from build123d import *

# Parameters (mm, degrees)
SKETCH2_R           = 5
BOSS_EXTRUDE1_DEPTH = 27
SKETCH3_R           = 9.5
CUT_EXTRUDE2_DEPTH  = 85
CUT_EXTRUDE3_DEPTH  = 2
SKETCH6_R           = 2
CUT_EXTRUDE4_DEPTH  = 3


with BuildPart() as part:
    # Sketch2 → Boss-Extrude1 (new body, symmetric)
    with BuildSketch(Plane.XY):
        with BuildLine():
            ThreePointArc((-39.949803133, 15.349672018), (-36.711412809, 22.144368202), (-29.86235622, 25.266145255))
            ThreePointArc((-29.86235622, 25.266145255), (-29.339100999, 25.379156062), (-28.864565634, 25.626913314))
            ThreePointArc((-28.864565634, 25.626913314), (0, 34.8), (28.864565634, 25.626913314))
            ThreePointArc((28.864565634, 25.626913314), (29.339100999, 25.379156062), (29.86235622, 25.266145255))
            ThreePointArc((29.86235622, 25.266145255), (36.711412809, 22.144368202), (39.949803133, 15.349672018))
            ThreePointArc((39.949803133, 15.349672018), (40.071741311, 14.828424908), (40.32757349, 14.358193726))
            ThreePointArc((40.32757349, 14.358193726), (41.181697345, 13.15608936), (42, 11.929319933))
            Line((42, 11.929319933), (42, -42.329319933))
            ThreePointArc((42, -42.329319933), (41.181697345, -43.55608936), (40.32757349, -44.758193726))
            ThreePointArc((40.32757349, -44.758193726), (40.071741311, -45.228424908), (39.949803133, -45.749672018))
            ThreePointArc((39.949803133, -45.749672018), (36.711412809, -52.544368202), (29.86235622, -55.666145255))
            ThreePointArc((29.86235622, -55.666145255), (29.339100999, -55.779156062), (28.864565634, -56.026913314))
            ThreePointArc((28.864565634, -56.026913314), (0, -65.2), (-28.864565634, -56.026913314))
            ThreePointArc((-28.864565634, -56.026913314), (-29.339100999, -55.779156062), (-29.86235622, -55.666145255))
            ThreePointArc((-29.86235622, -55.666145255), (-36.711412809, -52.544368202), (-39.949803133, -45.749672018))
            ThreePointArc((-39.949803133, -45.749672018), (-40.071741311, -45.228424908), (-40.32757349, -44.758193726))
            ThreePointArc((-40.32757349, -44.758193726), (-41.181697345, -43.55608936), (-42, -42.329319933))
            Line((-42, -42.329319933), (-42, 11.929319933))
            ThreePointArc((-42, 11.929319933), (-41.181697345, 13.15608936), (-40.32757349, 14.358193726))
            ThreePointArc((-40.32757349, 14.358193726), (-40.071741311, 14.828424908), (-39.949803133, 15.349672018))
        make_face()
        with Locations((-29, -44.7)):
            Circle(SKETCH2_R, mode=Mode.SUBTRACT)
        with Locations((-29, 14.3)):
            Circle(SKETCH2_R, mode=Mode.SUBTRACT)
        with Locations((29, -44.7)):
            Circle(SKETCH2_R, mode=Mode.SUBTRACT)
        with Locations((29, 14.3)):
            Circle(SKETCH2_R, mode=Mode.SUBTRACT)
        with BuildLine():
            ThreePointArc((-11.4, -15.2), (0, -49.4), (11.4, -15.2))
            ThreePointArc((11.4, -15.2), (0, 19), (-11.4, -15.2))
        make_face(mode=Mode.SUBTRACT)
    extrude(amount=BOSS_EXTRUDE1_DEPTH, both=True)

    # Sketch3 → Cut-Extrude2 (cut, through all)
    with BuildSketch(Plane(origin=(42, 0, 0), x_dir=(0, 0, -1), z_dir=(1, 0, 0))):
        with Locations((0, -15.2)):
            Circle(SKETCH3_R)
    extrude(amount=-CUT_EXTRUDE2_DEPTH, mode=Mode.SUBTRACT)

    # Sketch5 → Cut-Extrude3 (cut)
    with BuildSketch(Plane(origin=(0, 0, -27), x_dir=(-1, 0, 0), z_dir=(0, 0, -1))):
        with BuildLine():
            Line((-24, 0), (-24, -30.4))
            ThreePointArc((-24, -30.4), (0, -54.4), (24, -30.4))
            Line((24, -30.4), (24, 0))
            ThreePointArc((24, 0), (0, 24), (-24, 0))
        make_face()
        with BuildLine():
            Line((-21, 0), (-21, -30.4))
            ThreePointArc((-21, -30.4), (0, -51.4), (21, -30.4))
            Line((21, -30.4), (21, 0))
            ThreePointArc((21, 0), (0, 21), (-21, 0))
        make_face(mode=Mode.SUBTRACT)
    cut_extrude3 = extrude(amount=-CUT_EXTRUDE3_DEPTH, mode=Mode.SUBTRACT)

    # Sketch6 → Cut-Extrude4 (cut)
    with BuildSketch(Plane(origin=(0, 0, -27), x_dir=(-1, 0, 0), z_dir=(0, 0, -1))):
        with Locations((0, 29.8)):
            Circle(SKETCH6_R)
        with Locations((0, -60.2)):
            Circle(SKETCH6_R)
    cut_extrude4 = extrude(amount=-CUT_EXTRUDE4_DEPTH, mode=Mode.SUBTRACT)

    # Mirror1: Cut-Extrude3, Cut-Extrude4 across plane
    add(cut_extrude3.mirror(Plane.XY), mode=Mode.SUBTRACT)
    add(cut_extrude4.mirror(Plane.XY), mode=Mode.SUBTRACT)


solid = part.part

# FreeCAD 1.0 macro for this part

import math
import FreeCAD as App
import Part
import Sketcher

V = App.Vector
Q = App.Units.Quantity

doc = App.newDocument("Part")
body = doc.addObject("PartDesign::Body", "Body")

# Sketch on XY plane
sketch1 = body.newObject("Sketcher::SketchObject", "Sketch")
sketch1.AttachmentSupport = (doc.getObject("XY_Plane"), [""])
sketch1.MapMode = "FlatFace"
sketch1.addGeometry([
    Part.ArcOfCircle(Part.Circle(V(-29, 14.3, 0), V(0, 0, 1), 11), math.radians(94.496375), math.radians(174.524234)),  # 0
    Part.ArcOfCircle(Part.Circle(V(-41.940676, 15.540521, 0), V(0, 0, 1), 2), math.radians(-36.239644), math.radians(-5.475766)),  # 1
    Part.ArcOfCircle(Part.Circle(V(-0.000001, -15.2, 0), V(0, 0, 1), 49.999999), math.radians(143.760356), math.radians(147.14012)),  # 2
    Part.LineSegment(V(-42, 11.92932, 0), V(-42, -42.32932, 0)),  # 3
    Part.ArcOfCircle(Part.Circle(V(-0.000001, -15.2, 0), V(0, 0, 1), 49.999999), math.radians(-147.14012), math.radians(-143.760356)),  # 4
    Part.ArcOfCircle(Part.Circle(V(-41.940676, -45.940521, 0), V(0, 0, 1), 2), math.radians(5.475766), math.radians(36.239644)),  # 5
    Part.ArcOfCircle(Part.Circle(V(-29, -44.7, 0), V(0, 0, 1), 11), math.radians(-174.524234), math.radians(-94.496375)),  # 6
    Part.ArcOfCircle(Part.Circle(V(-30.019148, -57.65999, 0), V(0, 0, 1), 2), math.radians(54.739747), math.radians(85.503625)),  # 7
    Part.ArcOfCircle(Part.Circle(V(0, -15.2, 0), V(0, 0, 1), 50), math.radians(-125.260253), math.radians(-54.739747)),  # 8
    Part.ArcOfCircle(Part.Circle(V(30.019148, -57.65999, 0), V(0, 0, 1), 2), math.radians(94.496375), math.radians(125.260253)),  # 9
    Part.ArcOfCircle(Part.Circle(V(29, -44.7, 0), V(0, 0, 1), 11), math.radians(-85.503625), math.radians(-5.475766)),  # 10
    Part.ArcOfCircle(Part.Circle(V(41.940676, -45.940521, 0), V(0, 0, 1), 2), math.radians(143.760356), math.radians(174.524234)),  # 11
    Part.ArcOfCircle(Part.Circle(V(0.000001, -15.2, 0), V(0, 0, 1), 49.999999), math.radians(-36.239644), math.radians(-32.85988)),  # 12
    Part.LineSegment(V(42, -42.32932, 0), V(42, 11.92932, 0)),  # 13
    Part.ArcOfCircle(Part.Circle(V(0.000001, -15.2, 0), V(0, 0, 1), 49.999999), math.radians(32.85988), math.radians(36.239644)),  # 14
    Part.ArcOfCircle(Part.Circle(V(41.940676, 15.540521, 0), V(0, 0, 1), 2), math.radians(-174.524234), math.radians(-143.760356)),  # 15
    Part.ArcOfCircle(Part.Circle(V(29, 14.3, 0), V(0, 0, 1), 11), math.radians(5.475766), math.radians(85.503625)),  # 16
    Part.ArcOfCircle(Part.Circle(V(30.019148, 27.25999, 0), V(0, 0, 1), 2), math.radians(-125.260253), math.radians(-94.496375)),  # 17
    Part.ArcOfCircle(Part.Circle(V(0, -15.2, 0), V(0, 0, 1), 50), math.radians(54.739747), math.radians(125.260253)),  # 18
    Part.ArcOfCircle(Part.Circle(V(-30.019148, 27.25999, 0), V(0, 0, 1), 2), math.radians(-85.503625), math.radians(-54.739747)),  # 19
    Part.Circle(V(29, -44.7, 0), V(0, 0, 1), 5),  # 20
    Part.Circle(V(-29, -44.7, 0), V(0, 0, 1), 5),  # 21
    Part.Circle(V(29, 14.3, 0), V(0, 0, 1), 5),  # 22
    Part.ArcOfCircle(Part.Circle(V(0, 0, 0), V(0, 0, 1), 19), math.radians(-53.130102), math.radians(233.130102)),  # 23
    Part.ArcOfCircle(Part.Circle(V(0, -30.4, 0), V(0, 0, 1), 19), math.radians(126.869898), math.radians(413.130102)),  # 24
    Part.Circle(V(-29, 14.3, 0), V(0, 0, 1), 5),  # 25
], False)
sketch1.addConstraint([
    Sketcher.Constraint("Tangent", 0, 2, 1, 2),
    Sketcher.Constraint("Tangent", 1, 1, 2, 1),
    Sketcher.Constraint("Coincident", 2, 2, 3, 1),
    Sketcher.Constraint("Coincident", 3, 2, 4, 1),
    Sketcher.Constraint("Tangent", 4, 2, 5, 2),
    Sketcher.Constraint("Tangent", 5, 1, 6, 1),
    Sketcher.Constraint("Tangent", 6, 2, 7, 2),
    Sketcher.Constraint("Tangent", 7, 1, 8, 1),
    Sketcher.Constraint("Tangent", 8, 2, 9, 2),
    Sketcher.Constraint("Tangent", 9, 1, 10, 1),
    Sketcher.Constraint("Tangent", 10, 2, 11, 2),
    Sketcher.Constraint("Tangent", 11, 1, 12, 1),
    Sketcher.Constraint("Coincident", 12, 2, 13, 1),
    Sketcher.Constraint("Coincident", 13, 2, 14, 1),
    Sketcher.Constraint("Tangent", 14, 2, 15, 2),
    Sketcher.Constraint("Tangent", 15, 1, 16, 1),
    Sketcher.Constraint("Tangent", 16, 2, 17, 2),
    Sketcher.Constraint("Tangent", 17, 1, 18, 1),
    Sketcher.Constraint("Tangent", 18, 2, 19, 2),
    Sketcher.Constraint("Tangent", 19, 1, 0, 1),
    Sketcher.Constraint("Coincident", 23, 1, 24, 2),
    Sketcher.Constraint("Coincident", 24, 1, 23, 2),
    Sketcher.Constraint("Vertical", 3),
    Sketcher.Constraint("Vertical", 13),
    Sketcher.Constraint("Coincident", 23, 3, -1, 1),
    Sketcher.Constraint("Coincident", 4, 3, 2, 3),
    Sketcher.Constraint("Coincident", 8, 3, 2, 3),
    Sketcher.Constraint("Coincident", 12, 3, 2, 3),
    Sketcher.Constraint("Coincident", 14, 3, 2, 3),
    Sketcher.Constraint("Coincident", 18, 3, 2, 3),
    Sketcher.Constraint("Coincident", 20, 3, 10, 3),
    Sketcher.Constraint("Coincident", 21, 3, 6, 3),
    Sketcher.Constraint("Coincident", 22, 3, 16, 3),
    Sketcher.Constraint("Coincident", 25, 3, 0, 3),
    Sketcher.Constraint("Equal", 2, 4),
    Sketcher.Constraint("Equal", 1, 5),
    Sketcher.Constraint("Equal", 0, 6),
    Sketcher.Constraint("Equal", 5, 7),
    Sketcher.Constraint("Equal", 4, 8),
    Sketcher.Constraint("Equal", 7, 9),
    Sketcher.Constraint("Equal", 6, 10),
    Sketcher.Constraint("Equal", 9, 11),
    Sketcher.Constraint("Equal", 8, 12),
    Sketcher.Constraint("Equal", 12, 14),
    Sketcher.Constraint("Equal", 11, 15),
    Sketcher.Constraint("Equal", 10, 16),
    Sketcher.Constraint("Equal", 15, 17),
    Sketcher.Constraint("Equal", 14, 18),
    Sketcher.Constraint("Equal", 17, 19),
    Sketcher.Constraint("Equal", 20, 21),
    Sketcher.Constraint("Equal", 21, 22),
    Sketcher.Constraint("Equal", 23, 24),
    Sketcher.Constraint("Equal", 22, 25),
    Sketcher.Constraint("Symmetric", 7, 3, 9, 3, -2),
    Sketcher.Constraint("Symmetric", 0, 3, 16, 3, -2),
    Sketcher.Constraint("PointOnObject", 24, 3, -2),
    Sketcher.Constraint("Horizontal", 6, 3, 10, 3),
    Sketcher.Constraint("Horizontal", 3, 2, 12, 2),
    Sketcher.Constraint("Horizontal", 18, 3, 23, 1),
    Sketcher.Constraint("Vertical", 1, 3, 5, 3),
    Sketcher.Constraint("Vertical", 0, 3, 6, 3),
    Sketcher.Constraint("Diameter", 20, Q("10 mm")),
    Sketcher.Constraint("Radius", 0, Q("11 mm")),
    Sketcher.Constraint("Radius", 1, Q("2 mm")),
    Sketcher.Constraint("Radius", 2, Q("49.999999 mm")),
    Sketcher.Constraint("Radius", 23, Q("19 mm")),
    Sketcher.Constraint("DistanceX", 0, 3, -1, 1, Q("29 mm")),
    Sketcher.Constraint("DistanceX", 2, 2, -1, 1, Q("42 mm")),
    Sketcher.Constraint("DistanceY", 6, 3, 0, 3, Q("59 mm")),
    Sketcher.Constraint("DistanceY", -1, 1, 0, 3, Q("14.3 mm")),
])
pad1 = body.newObject("PartDesign::Pad", "Pad")
pad1.Profile = sketch1
pad1.Length = 54
pad1.Midplane = True

# Sketch on YZ plane
sketch2 = body.newObject("Sketcher::SketchObject", "Sketch001")
sketch2.AttachmentSupport = (doc.getObject("YZ_Plane"), [""])
sketch2.MapMode = "FlatFace"
sketch2.AttachmentOffset = App.Placement(V(0, 0, 42), App.Rotation())
sketch2.addGeometry(Part.Circle(V(-15.2, 0, 0), V(0, 0, 1), 9.5), False)
sketch2.addConstraint([
    Sketcher.Constraint("PointOnObject", 0, 3, -1),
    Sketcher.Constraint("Diameter", 0, Q("19 mm")),
    Sketcher.Constraint("DistanceX", 0, 3, -1, 1, Q("15.2 mm")),
])
pocket1 = body.newObject("PartDesign::Pocket", "Pocket")
pocket1.Profile = sketch2
pocket1.Type = "ThroughAll"

# Sketch on XY plane
sketch3 = body.newObject("Sketcher::SketchObject", "Sketch002")
sketch3.AttachmentSupport = (doc.getObject("XY_Plane"), [""])
sketch3.MapMode = "FlatFace"
sketch3.AttachmentOffset = App.Placement(V(0, 0, -27), App.Rotation())
sketch3.addGeometry([
    Part.LineSegment(V(24, 0, 0), V(24, -30.4, 0)),  # 0
    Part.ArcOfCircle(Part.Circle(V(0, -30.4, 0), V(0, 0, 1), 24), math.radians(180), math.radians(360)),  # 1
    Part.LineSegment(V(-24, -30.4, 0), V(-24, 0, 0)),  # 2
    Part.ArcOfCircle(Part.Circle(V(0, 0, 0), V(0, 0, 1), 24), math.radians(0), math.radians(180)),  # 3
    Part.LineSegment(V(21, -30.4, 0), V(21, 0, 0)),  # 4
    Part.ArcOfCircle(Part.Circle(V(0, 0, 0), V(0, 0, 1), 21), math.radians(0), math.radians(180)),  # 5
    Part.LineSegment(V(-21, 0, 0), V(-21, -30.4, 0)),  # 6
    Part.ArcOfCircle(Part.Circle(V(0, -30.4, 0), V(0, 0, 1), 21), math.radians(180), math.radians(360)),  # 7
], False)
sketch3.addConstraint([
    Sketcher.Constraint("Tangent", 0, 2, 1, 2),
    Sketcher.Constraint("Tangent", 1, 1, 2, 1),
    Sketcher.Constraint("Tangent", 2, 2, 3, 2),
    Sketcher.Constraint("Tangent", 3, 1, 0, 1),
    Sketcher.Constraint("Tangent", 4, 2, 5, 1),
    Sketcher.Constraint("Tangent", 5, 2, 6, 1),
    Sketcher.Constraint("Tangent", 6, 2, 7, 1),
    Sketcher.Constraint("Tangent", 7, 2, 4, 1),
    Sketcher.Constraint("Vertical", 0),
    Sketcher.Constraint("Vertical", 2),
    Sketcher.Constraint("Vertical", 4),
    Sketcher.Constraint("Vertical", 6),
    Sketcher.Constraint("Coincident", 3, 3, -1, 1),
    Sketcher.Constraint("Coincident", 5, 3, -1, 1),
    Sketcher.Constraint("Horizontal", 7, 3, 0, 2),
    Sketcher.Constraint("Radius", 1, Q("24 mm")),
    Sketcher.Constraint("Radius", 5, Q("21 mm")),
    Sketcher.Constraint("DistanceY", 0, 2, 0, 1, Q("30.4 mm")),
])
pocket2 = body.newObject("PartDesign::Pocket", "Pocket001")
pocket2.Profile = sketch3
pocket2.Length = 2
pocket2.Reversed = True

# Sketch on XY plane
sketch4 = body.newObject("Sketcher::SketchObject", "Sketch003")
sketch4.AttachmentSupport = (doc.getObject("XY_Plane"), [""])
sketch4.MapMode = "FlatFace"
sketch4.AttachmentOffset = App.Placement(V(0, 0, -27), App.Rotation())
sketch4.addGeometry([
    Part.Circle(V(0, 29.8, 0), V(0, 0, 1), 2),
    Part.Circle(V(0, -60.2, 0), V(0, 0, 1), 2),
], False)
sketch4.addConstraint([
    Sketcher.Constraint("Equal", 0, 1),
    Sketcher.Constraint("PointOnObject", 0, 3, -2),
    Sketcher.Constraint("PointOnObject", 1, 3, -2),
    Sketcher.Constraint("Diameter", 0, Q("4 mm")),
    Sketcher.Constraint("DistanceY", 1, 3, 0, 3, Q("90 mm")),
    Sketcher.Constraint("DistanceY", -1, 1, 0, 3, Q("29.8 mm")),
])
pocket3 = body.newObject("PartDesign::Pocket", "Pocket002")
pocket3.Profile = sketch4
pocket3.Length = 3
pocket3.Reversed = True
doc.recompute()

mirrored = body.newObject("PartDesign::Mirrored", "Mirrored")
mirrored.Originals = [pocket2, pocket3]
mirrored.MirrorPlane = (doc.getObject("XY_Plane"), [""])
body.Tip = mirrored

doc.recompute()
